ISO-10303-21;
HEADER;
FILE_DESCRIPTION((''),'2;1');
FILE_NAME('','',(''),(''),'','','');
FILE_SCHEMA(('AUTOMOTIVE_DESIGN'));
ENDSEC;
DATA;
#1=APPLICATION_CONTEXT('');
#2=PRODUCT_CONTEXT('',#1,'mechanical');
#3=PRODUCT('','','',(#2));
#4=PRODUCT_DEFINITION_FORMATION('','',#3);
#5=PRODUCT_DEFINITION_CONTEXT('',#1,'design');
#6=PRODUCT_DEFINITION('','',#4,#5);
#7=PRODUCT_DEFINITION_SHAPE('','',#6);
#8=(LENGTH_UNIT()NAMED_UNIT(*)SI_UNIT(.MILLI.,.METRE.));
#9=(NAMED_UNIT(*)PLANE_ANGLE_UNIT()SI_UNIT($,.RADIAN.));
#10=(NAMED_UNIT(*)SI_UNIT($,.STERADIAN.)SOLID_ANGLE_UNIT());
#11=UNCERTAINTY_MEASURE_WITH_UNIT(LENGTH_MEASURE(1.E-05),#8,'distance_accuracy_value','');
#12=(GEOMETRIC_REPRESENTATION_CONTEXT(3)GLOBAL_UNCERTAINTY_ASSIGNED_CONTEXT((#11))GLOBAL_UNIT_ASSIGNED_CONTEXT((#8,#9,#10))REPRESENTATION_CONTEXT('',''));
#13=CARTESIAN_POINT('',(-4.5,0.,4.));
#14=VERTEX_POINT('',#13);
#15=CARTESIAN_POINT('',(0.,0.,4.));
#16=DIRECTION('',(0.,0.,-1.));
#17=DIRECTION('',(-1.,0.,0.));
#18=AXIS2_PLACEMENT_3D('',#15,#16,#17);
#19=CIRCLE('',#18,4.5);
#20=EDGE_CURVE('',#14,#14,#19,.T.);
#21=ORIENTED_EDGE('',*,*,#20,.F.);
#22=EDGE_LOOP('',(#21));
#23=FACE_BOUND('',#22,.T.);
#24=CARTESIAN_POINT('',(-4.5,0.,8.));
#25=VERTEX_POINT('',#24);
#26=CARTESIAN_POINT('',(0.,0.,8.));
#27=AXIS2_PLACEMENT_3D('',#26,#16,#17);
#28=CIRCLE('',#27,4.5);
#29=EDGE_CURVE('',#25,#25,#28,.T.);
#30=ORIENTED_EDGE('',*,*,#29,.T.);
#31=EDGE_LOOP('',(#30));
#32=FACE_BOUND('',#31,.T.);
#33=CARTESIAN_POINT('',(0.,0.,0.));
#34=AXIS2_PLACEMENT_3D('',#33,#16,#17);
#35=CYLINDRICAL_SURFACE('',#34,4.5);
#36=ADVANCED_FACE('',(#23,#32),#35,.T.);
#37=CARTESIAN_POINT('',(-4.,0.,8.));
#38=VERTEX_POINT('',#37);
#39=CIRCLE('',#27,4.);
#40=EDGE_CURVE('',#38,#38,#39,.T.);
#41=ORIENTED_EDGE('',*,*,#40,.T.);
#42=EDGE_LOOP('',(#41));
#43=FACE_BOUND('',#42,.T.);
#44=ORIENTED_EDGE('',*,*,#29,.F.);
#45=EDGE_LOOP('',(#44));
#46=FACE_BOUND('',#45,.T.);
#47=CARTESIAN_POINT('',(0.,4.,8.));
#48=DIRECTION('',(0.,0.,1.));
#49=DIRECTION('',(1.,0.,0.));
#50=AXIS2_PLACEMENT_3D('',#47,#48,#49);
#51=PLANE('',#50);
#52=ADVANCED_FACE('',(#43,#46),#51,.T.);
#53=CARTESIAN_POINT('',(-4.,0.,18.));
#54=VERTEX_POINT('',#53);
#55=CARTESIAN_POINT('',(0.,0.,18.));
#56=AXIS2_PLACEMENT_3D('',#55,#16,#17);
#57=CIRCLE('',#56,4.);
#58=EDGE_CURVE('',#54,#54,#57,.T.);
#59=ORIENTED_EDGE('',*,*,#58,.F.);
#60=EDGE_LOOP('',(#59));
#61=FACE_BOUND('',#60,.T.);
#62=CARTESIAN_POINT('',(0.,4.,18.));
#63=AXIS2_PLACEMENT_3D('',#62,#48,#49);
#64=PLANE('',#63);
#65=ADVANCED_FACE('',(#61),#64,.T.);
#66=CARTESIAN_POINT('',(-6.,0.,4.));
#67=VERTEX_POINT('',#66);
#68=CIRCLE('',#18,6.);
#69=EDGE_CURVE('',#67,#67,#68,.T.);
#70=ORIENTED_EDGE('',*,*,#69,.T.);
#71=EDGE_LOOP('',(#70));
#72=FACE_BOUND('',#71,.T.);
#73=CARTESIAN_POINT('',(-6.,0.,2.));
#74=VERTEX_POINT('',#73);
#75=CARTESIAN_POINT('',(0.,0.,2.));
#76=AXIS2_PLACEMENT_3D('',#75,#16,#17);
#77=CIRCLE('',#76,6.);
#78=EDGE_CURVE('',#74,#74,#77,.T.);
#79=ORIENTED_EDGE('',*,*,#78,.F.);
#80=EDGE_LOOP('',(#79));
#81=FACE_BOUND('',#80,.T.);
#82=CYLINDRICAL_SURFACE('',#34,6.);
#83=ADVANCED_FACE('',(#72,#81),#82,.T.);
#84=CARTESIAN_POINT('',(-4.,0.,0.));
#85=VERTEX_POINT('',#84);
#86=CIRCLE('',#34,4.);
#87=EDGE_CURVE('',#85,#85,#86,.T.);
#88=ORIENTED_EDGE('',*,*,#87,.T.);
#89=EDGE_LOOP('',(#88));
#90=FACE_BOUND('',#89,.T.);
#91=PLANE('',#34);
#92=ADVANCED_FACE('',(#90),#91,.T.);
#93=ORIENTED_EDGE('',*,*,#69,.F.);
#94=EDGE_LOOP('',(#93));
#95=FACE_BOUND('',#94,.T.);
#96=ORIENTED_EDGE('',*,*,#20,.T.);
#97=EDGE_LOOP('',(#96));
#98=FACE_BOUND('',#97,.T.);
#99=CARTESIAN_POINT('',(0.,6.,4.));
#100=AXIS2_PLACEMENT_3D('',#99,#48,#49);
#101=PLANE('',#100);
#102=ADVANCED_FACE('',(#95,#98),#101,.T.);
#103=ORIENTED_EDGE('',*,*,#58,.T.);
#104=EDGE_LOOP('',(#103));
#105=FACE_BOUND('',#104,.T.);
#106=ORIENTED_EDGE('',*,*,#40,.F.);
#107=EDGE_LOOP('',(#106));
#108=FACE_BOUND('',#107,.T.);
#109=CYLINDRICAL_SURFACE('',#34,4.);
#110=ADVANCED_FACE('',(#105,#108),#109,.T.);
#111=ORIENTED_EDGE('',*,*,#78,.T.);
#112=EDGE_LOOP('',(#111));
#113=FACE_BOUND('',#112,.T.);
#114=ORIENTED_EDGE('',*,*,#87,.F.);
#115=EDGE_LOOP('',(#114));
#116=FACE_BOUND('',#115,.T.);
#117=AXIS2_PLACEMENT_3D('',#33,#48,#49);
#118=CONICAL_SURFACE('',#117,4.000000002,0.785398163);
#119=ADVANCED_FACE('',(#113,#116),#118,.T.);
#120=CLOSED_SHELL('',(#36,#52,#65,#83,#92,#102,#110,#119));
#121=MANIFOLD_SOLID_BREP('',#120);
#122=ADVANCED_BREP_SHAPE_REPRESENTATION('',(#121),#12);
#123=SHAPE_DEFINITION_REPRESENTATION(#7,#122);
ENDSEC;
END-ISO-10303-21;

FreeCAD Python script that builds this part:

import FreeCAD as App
import Part
import Sketcher
Q = App.Units.Quantity

doc = App.newDocument("Part")
params = doc.addObject("Spreadsheet::Sheet", "Params")
for row, (alias, value) in enumerate([
    ("sketch1_width", "4 mm"),
    ("sketch1_height", "2 mm"),
    ("sketch1_height2", "10 mm"),
    ("sketch1_height3", "18 mm"),
    ("sketch1_width2", "1.5 mm"),
    ("revolution_angle", "360 deg"),
], start=1):
    params.set(f"A{row}", alias)
    params.set(f"B{row}", "=" + value)
    params.setAlias(f"B{row}", alias)

body = doc.addObject("PartDesign::Body", "Body")

# Sketch on YZ plane
sketch1 = body.newObject("Sketcher::SketchObject", "Sketch")
sketch1.AttachmentSupport = (doc.getObject("YZ_Plane"), [""])
sketch1.MapMode = "FlatFace"
sketch1.addGeometry([
    Part.LineSegment(App.Vector(0, 0, 0), App.Vector(4, 0, 0)),  # 0
    Part.LineSegment(App.Vector(4, 0, 0), App.Vector(6, 2, 0)),  # 1
    Part.LineSegment(App.Vector(6, 2, 0), App.Vector(6, 4, 0)),  # 2
    Part.LineSegment(App.Vector(6, 4, 0), App.Vector(4.5, 4, 0)),  # 3
    Part.LineSegment(App.Vector(4.5, 4, 0), App.Vector(4.5, 8, 0)),  # 4
    Part.LineSegment(App.Vector(4.5, 8, 0), App.Vector(4, 8, 0)),  # 5
    Part.LineSegment(App.Vector(4, 8, 0), App.Vector(4, 18, 0)),  # 6
    Part.LineSegment(App.Vector(4, 18, 0), App.Vector(0, 18, 0)),  # 7
    Part.LineSegment(App.Vector(0, 18, 0), App.Vector(0, 0, 0)),  # 8
], False)
sketch1.addConstraint([
    Sketcher.Constraint("Coincident", 0, 2, 1, 1),
    Sketcher.Constraint("Coincident", 1, 2, 2, 1),
    Sketcher.Constraint("Coincident", 2, 2, 3, 1),
    Sketcher.Constraint("Coincident", 3, 2, 4, 1),
    Sketcher.Constraint("Coincident", 4, 2, 5, 1),
    Sketcher.Constraint("Coincident", 5, 2, 6, 1),
    Sketcher.Constraint("Coincident", 6, 2, 7, 1),
    Sketcher.Constraint("Coincident", 7, 2, 8, 1),
    Sketcher.Constraint("Coincident", 8, 2, 0, 1),
    Sketcher.Constraint("Horizontal", 0),
    Sketcher.Constraint("Vertical", 2),
    Sketcher.Constraint("Horizontal", 3),
    Sketcher.Constraint("Vertical", 4),
    Sketcher.Constraint("Horizontal", 5),
    Sketcher.Constraint("Vertical", 6),
    Sketcher.Constraint("Horizontal", 7),
    Sketcher.Constraint("Vertical", 8),
    Sketcher.Constraint("Coincident", 8, 2, -1, 1),
    Sketcher.Constraint("Vertical", 0, 2, 5, 2),
    Sketcher.Constraint("Equal", 7, 4),
    Sketcher.Constraint("DistanceX", 0, 1, 0, 2, 4.0),
    Sketcher.Constraint("DistanceY", 2, 1, 2, 2, 2.0),
    Sketcher.Constraint("DistanceY", 6, 1, 6, 2, 10.0),
    Sketcher.Constraint("DistanceY", 8, 2, 8, 1, 18.0),
    Sketcher.Constraint("Angle", 1, Q("45 deg")),
    Sketcher.Constraint("DistanceX", 3, 2, 3, 1, 1.5),
])
sketch1.setExpression("Constraints[20]", "Params.sketch1_width")
sketch1.setExpression("Constraints[21]", "Params.sketch1_height")
sketch1.setExpression("Constraints[22]", "Params.sketch1_height2")
sketch1.setExpression("Constraints[23]", "Params.sketch1_height3")
sketch1.setExpression("Constraints[25]", "Params.sketch1_width2")
revolution = body.newObject("PartDesign::Revolution", "Revolution")
revolution.Profile = sketch1
revolution.ReferenceAxis = (sketch1, ["V_Axis"])
revolution.setExpression("Angle", "Params.revolution_angle")

doc.recompute()
